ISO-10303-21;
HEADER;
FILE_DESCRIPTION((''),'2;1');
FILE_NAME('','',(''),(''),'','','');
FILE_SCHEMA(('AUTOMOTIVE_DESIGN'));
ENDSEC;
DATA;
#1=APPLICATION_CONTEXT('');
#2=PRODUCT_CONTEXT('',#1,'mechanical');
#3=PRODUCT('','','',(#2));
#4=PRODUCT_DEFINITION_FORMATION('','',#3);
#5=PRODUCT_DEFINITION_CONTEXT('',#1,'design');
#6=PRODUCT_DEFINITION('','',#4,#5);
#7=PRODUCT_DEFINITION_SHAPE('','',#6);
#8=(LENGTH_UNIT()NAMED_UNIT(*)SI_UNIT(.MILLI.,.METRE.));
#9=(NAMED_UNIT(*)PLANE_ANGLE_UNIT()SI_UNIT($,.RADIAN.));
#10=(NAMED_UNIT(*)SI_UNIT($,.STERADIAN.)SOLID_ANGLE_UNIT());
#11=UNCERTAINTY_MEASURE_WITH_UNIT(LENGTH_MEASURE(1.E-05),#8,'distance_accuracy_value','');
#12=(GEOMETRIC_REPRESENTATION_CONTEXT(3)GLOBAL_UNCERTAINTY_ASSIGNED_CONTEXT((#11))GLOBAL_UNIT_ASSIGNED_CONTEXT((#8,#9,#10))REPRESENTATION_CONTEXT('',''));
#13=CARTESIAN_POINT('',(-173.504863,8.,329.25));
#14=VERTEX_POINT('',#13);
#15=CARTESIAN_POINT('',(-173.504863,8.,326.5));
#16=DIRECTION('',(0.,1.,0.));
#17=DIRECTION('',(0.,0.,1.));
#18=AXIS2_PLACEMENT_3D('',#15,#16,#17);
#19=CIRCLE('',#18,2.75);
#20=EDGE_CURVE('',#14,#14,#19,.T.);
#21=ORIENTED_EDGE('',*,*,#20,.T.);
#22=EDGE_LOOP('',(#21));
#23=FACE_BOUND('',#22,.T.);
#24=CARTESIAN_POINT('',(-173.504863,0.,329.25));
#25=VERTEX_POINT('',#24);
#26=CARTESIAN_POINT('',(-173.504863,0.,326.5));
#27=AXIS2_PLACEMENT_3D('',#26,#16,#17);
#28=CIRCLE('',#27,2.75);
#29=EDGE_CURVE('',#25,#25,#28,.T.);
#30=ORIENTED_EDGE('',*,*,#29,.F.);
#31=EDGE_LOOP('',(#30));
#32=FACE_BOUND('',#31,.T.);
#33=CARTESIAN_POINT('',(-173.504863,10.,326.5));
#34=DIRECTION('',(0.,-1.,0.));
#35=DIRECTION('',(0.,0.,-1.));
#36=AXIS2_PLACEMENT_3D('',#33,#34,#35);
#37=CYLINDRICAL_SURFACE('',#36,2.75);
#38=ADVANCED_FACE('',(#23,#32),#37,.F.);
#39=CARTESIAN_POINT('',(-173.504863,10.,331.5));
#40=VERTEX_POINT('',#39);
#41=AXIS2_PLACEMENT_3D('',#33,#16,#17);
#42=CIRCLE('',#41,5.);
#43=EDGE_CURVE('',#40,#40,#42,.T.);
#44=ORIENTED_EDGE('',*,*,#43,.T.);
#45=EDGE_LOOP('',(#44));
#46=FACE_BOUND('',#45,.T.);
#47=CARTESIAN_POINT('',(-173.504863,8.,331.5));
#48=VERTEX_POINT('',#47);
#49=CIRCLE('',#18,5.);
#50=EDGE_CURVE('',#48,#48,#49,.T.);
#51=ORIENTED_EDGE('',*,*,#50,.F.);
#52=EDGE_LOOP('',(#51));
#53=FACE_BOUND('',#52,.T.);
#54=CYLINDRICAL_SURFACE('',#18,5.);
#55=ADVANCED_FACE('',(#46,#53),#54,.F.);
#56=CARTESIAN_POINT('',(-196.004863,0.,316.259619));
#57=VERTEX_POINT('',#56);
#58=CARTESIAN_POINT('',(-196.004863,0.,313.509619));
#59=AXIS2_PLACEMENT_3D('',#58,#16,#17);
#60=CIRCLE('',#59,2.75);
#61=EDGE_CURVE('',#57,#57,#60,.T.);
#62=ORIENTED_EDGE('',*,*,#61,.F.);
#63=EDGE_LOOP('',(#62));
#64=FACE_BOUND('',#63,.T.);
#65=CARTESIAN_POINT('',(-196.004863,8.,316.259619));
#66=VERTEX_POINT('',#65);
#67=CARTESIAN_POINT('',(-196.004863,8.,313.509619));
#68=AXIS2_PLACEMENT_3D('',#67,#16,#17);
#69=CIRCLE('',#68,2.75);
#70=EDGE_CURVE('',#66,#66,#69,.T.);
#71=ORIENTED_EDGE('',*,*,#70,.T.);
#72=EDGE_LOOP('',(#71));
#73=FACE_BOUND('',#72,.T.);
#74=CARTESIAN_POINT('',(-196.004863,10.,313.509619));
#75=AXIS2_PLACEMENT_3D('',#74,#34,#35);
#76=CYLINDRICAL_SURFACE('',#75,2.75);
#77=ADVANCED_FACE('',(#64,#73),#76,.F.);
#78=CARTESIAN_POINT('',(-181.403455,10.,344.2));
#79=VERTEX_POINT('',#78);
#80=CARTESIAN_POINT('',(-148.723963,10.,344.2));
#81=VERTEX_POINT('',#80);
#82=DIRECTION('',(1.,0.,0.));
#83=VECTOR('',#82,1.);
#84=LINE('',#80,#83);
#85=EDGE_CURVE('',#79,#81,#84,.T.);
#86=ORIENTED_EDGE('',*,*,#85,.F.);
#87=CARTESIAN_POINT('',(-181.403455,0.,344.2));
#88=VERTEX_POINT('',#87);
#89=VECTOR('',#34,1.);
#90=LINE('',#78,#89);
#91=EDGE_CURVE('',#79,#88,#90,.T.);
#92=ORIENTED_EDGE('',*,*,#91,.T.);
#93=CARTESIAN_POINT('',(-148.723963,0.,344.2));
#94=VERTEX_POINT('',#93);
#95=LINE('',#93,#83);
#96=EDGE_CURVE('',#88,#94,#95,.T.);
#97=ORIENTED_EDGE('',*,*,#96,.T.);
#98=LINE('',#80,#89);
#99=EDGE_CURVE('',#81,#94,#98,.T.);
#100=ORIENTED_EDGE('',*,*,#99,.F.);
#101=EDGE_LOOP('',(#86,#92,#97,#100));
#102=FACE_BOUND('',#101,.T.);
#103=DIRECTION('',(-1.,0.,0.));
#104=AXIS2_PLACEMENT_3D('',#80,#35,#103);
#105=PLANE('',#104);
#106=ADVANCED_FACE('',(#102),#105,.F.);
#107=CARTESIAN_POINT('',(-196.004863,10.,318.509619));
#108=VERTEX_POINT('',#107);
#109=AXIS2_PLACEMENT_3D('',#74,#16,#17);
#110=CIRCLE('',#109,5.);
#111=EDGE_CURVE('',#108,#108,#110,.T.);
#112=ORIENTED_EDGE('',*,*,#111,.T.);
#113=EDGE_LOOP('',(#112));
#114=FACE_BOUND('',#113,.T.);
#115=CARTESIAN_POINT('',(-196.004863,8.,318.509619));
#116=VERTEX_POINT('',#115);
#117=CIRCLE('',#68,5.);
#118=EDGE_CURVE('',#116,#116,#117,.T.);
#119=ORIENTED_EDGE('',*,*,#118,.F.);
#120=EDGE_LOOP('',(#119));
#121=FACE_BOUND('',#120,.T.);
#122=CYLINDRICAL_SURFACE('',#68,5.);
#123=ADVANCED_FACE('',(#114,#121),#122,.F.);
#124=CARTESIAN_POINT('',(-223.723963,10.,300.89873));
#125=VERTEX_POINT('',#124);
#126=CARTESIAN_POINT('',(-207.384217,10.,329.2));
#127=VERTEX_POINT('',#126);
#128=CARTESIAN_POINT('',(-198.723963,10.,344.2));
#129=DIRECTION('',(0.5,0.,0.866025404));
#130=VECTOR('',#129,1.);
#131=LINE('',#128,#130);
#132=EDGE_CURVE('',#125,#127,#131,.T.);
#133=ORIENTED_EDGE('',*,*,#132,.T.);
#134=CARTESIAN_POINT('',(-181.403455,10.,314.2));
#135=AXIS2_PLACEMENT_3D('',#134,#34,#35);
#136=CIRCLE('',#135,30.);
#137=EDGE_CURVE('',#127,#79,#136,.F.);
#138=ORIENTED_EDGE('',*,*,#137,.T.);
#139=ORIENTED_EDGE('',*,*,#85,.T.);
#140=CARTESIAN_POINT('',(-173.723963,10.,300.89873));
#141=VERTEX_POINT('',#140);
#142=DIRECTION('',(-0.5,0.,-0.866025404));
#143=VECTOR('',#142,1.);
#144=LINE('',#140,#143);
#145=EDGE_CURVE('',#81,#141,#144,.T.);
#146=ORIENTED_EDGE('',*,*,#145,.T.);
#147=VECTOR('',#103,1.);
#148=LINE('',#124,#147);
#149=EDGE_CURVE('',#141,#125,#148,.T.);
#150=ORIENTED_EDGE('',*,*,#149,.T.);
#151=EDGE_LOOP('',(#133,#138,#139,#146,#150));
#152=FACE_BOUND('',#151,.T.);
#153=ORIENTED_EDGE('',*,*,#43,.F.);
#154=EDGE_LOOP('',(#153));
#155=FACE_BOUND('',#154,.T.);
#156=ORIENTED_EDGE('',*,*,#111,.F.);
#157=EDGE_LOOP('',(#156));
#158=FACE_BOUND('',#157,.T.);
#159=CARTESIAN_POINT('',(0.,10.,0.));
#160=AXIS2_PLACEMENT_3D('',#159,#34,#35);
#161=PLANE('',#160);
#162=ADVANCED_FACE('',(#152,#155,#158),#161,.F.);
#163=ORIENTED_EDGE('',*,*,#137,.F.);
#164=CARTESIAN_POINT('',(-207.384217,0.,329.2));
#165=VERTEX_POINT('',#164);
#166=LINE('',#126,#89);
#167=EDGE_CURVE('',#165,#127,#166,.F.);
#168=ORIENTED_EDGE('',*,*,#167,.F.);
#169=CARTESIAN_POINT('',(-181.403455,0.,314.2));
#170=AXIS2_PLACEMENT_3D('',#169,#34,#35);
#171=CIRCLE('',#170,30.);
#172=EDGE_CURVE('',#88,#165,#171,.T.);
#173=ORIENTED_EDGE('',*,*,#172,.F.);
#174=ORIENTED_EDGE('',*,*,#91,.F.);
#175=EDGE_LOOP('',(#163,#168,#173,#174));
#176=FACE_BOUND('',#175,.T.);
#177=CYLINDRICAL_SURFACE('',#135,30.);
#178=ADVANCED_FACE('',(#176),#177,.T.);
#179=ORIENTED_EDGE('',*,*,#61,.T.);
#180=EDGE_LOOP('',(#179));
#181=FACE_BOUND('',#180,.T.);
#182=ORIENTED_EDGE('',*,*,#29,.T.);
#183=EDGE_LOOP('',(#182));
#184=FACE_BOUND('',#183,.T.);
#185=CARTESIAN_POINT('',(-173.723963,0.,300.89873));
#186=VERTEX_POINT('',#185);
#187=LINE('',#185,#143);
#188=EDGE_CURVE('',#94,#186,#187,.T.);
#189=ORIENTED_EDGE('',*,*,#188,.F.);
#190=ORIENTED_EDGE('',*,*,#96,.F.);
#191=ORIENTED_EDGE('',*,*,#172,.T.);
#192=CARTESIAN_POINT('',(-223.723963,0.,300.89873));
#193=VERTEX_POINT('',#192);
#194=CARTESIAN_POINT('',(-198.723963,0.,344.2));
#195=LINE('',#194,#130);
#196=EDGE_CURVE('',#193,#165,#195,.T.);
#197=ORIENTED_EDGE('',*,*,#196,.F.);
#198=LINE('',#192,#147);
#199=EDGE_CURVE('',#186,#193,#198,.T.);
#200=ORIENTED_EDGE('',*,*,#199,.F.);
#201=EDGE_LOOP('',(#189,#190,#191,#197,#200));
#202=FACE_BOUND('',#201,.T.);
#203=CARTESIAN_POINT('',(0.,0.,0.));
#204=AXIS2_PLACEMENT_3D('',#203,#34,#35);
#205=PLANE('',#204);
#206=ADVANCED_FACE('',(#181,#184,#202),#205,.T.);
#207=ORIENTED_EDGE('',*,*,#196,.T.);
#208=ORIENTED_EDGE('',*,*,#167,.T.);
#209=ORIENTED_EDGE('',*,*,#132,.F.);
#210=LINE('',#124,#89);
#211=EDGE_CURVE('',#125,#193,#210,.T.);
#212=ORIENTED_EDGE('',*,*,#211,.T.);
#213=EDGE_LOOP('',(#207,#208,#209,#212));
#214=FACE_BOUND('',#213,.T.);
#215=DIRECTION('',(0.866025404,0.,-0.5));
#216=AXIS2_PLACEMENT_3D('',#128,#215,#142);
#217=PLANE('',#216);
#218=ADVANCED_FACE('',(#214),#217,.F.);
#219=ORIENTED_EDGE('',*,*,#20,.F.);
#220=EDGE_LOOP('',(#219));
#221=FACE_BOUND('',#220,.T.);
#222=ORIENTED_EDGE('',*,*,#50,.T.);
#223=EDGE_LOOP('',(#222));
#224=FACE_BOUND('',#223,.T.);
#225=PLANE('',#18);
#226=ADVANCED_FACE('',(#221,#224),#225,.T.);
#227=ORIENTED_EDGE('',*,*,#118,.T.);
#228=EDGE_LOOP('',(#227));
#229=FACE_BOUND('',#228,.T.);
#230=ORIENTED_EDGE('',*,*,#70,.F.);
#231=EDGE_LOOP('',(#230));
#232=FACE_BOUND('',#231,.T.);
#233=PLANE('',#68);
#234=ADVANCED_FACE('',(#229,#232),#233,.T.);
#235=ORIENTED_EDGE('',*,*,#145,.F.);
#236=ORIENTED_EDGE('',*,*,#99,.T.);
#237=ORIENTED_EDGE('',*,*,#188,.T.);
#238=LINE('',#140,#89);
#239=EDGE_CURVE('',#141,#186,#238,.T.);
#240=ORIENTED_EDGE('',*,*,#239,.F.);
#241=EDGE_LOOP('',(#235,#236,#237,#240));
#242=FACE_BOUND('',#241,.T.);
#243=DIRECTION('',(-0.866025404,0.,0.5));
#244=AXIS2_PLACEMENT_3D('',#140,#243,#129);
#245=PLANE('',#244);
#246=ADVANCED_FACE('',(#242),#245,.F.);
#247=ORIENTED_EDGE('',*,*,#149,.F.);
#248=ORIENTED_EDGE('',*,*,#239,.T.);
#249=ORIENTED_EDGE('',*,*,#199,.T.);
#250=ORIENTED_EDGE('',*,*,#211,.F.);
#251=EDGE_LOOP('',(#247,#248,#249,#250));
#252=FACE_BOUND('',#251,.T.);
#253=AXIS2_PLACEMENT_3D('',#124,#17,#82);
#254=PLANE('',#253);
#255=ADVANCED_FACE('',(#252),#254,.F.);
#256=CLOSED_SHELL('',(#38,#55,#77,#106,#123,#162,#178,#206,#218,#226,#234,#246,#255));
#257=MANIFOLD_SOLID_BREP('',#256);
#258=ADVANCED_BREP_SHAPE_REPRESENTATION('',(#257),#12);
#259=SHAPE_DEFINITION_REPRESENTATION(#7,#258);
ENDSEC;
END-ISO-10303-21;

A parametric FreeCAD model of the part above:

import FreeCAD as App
import Part
import Sketcher

V = App.Vector
Q = App.Units.Quantity


def edges_at(feature, points):
    """Names of the edges that pass closest to the given points."""
    edges = feature.Shape.Edges
    near = lambda p: min(range(len(edges)), key=lambda i: edges[i].distToShape(Part.Vertex(*p))[0])
    return sorted({f"Edge{near(p) + 1}" for p in points})

doc = App.newDocument("Part")
params = doc.addObject("Spreadsheet::Sheet", "Params")
for row, (alias, value) in enumerate([
    ("sketch1_diameter", "5.5 mm"),
    ("sketch1_width", "50 mm"),
    ("sketch1_length", "50 mm"),
    ("pad1_length", "10 mm"),
    ("sketch2_diameter", "10 mm"),
    ("pocket1_length", "2 mm"),
    ("fillet_radius", "30 mm"),
], start=1):
    params.set(f"A{row}", alias)
    params.set(f"B{row}", "=" + value)
    params.setAlias(f"B{row}", alias)

body = doc.addObject("PartDesign::Body", "Body")

# Sketch on XZ plane
sketch1 = body.newObject("Sketcher::SketchObject", "Sketch")
sketch1.AttachmentSupport = (doc.getObject("XZ_Plane"), [""])
sketch1.MapMode = "FlatFace"
sketch1.addGeometry([
    Part.LineSegment(V(-198.7, 344.2, 0), V(-148.7, 344.2, 0)),  # 0
    Part.LineSegment(V(-148.7, 344.2, 0), V(-173.7, 300.9, 0)),  # 1
    Part.LineSegment(V(-173.7, 300.9, 0), V(-223.7, 300.9, 0)),  # 2
    Part.LineSegment(V(-223.7, 300.9, 0), V(-198.7, 344.2, 0)),  # 3
    Part.Circle(V(-173.5, 326.5, 0), V(0, 0, 1), 2.8),  # 4
    Part.Circle(V(-196, 313.5, 0), V(0, 0, 1), 2.8),  # 5
], False)
sketch1.addConstraint([
    Sketcher.Constraint("Coincident", 0, 2, 1, 1),
    Sketcher.Constraint("Coincident", 1, 2, 2, 1),
    Sketcher.Constraint("Coincident", 2, 2, 3, 1),
    Sketcher.Constraint("Coincident", 3, 2, 0, 1),
    Sketcher.Constraint("Horizontal", 0),
    Sketcher.Constraint("Horizontal", 2),
    Sketcher.Constraint("Equal", 4, 5),
    Sketcher.Constraint("Parallel", 1, 3),
    Sketcher.Constraint("Diameter", 4, Q("5.5 mm")),
    Sketcher.Constraint("DistanceX", 0, 1, 0, 2, Q("50 mm")),
    Sketcher.Constraint("Angle", 1, Q("-120 deg")),
    Sketcher.Constraint("Distance", 1, Q("50 mm")),
    Sketcher.Constraint("DistanceY", -1, 1, 4, 3, Q("326.5 mm")),
    Sketcher.Constraint("DistanceY", -1, 1, 0, 2, Q("344.2 mm")),
    Sketcher.Constraint("DistanceX", 5, 3, 4, 3, Q("22.5 mm")),
    Sketcher.Constraint("DistanceX", 4, 3, 0, 2, Q("24.7809 mm")),
    Sketcher.Constraint("DistanceY", -1, 1, 5, 3, Q("313.509619 mm")),
    Sketcher.Constraint("DistanceX", 4, 3, -1, 1, Q("173.504863 mm")),
])
sketch1.setExpression("Constraints[8]", "Params.sketch1_diameter")
sketch1.setExpression("Constraints[9]", "Params.sketch1_width")
sketch1.setExpression("Constraints[11]", "Params.sketch1_length")
pad1 = body.newObject("PartDesign::Pad", "Pad")
pad1.Profile = sketch1
pad1.setExpression("Length", "Params.pad1_length")
pad1.Reversed = True

# Sketch on XZ plane
sketch2 = body.newObject("Sketcher::SketchObject", "Sketch001")
sketch2.AttachmentSupport = (doc.getObject("XZ_Plane"), [""])
sketch2.MapMode = "FlatFace"
sketch2.AttachmentOffset = App.Placement(V(0, 0, -10), App.Rotation())
sketch2.addGeometry([
    Part.Circle(V(-196, 314, 0), V(0, 0, 1), 5),
    Part.Circle(V(-174, 326, 0), V(0, 0, 1), 5),
], False)
sketch2.addConstraint([
    Sketcher.Constraint("Equal", 0, 1),
    Sketcher.Constraint("Diameter", 0, Q("10 mm")),
    Sketcher.Constraint("DistanceY", -1, 1, 1, 3, Q("326.5 mm")),
    Sketcher.Constraint("DistanceX", 0, 3, 1, 3, Q("22.5 mm")),
    Sketcher.Constraint("DistanceY", -1, 1, 0, 3, Q("313.509619 mm")),
    Sketcher.Constraint("DistanceX", 0, 3, -1, 1, Q("196.004863 mm")),
])
sketch2.setExpression("Constraints[1]", "Params.sketch2_diameter")
pocket1 = body.newObject("PartDesign::Pocket", "Pocket")
pocket1.Profile = sketch2
pocket1.setExpression("Length", "Params.pocket1_length")
pocket1.Reversed = True
doc.recompute()

fillet = body.newObject("PartDesign::Fillet", "Fillet")
fillet.Base = (pocket1, edges_at(pocket1, [(-198.724, 5, 344.2)]))
fillet.setExpression("Radius", "Params.fillet_radius")

doc.recompute()
